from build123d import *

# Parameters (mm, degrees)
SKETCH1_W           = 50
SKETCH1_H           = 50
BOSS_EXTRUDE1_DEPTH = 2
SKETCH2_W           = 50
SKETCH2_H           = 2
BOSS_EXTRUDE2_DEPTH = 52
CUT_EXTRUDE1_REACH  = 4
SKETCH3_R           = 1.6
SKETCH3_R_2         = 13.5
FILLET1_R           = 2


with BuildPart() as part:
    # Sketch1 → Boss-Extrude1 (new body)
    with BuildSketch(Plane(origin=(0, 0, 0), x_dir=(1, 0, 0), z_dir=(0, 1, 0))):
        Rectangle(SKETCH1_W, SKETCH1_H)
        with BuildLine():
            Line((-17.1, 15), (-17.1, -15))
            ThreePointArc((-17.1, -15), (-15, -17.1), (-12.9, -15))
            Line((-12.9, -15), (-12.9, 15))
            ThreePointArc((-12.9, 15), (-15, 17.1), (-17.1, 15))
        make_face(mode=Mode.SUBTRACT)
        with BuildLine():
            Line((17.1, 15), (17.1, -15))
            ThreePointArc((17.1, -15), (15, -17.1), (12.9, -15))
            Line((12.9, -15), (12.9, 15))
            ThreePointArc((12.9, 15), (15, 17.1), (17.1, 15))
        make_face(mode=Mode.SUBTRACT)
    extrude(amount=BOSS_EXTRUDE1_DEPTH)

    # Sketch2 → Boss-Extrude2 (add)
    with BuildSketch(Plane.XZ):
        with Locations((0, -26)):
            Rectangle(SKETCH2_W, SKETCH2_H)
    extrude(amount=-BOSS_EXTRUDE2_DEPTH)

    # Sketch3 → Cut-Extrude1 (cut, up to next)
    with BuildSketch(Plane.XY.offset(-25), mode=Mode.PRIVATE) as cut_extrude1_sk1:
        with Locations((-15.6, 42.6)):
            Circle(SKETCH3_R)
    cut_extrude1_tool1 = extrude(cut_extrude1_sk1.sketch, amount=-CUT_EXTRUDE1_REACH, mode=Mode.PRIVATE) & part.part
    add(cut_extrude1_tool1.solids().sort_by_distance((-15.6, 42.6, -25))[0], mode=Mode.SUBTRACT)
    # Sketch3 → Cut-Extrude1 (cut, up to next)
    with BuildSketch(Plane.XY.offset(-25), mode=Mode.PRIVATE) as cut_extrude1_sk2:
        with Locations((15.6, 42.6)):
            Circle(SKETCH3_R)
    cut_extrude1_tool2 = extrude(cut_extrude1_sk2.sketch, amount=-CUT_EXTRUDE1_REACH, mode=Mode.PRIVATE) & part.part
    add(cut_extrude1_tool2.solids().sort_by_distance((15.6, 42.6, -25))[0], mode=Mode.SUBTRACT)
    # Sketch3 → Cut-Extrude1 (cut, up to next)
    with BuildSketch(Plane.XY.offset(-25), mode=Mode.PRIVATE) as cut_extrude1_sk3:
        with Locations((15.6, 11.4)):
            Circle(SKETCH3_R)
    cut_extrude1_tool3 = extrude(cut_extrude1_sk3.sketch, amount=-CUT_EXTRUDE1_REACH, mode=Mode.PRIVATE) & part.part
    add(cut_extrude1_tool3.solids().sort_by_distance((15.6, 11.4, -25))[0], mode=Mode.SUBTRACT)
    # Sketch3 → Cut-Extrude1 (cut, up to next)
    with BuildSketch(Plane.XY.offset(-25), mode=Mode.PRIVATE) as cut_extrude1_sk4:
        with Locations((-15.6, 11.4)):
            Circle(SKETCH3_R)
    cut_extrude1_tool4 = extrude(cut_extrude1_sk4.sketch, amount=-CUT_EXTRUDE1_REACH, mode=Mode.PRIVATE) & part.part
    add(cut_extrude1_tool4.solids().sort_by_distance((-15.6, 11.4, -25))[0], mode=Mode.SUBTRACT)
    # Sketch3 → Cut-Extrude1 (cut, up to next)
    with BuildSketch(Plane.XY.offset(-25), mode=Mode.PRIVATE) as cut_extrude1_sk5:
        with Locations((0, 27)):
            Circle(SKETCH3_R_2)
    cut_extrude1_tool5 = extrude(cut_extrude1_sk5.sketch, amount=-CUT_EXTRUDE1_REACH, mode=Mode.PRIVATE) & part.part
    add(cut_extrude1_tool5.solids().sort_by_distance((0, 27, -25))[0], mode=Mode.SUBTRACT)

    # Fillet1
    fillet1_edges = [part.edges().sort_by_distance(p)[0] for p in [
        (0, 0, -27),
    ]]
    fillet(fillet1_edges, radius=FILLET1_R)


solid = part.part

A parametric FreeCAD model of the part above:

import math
import FreeCAD as App
import Part
import Sketcher
from FreeCAD import Vector


def edges_at(feature, points):
    """Names of the edges that pass closest to the given points."""
    edges = feature.Shape.Edges
    near = lambda p: min(range(len(edges)), key=lambda i: edges[i].distToShape(Part.Vertex(*p))[0])
    return sorted({f"Edge{near(p) + 1}" for p in points})


def add_polygon(sketch, points):
    """Adds a closed chain of lines whose ends are joined by coincident constraints."""
    first, n = sketch.GeometryCount, len(points)
    for a, b in zip(points, points[1:] + points[:1]):
        sketch.addGeometry(Part.LineSegment(App.Vector(*a, 0), App.Vector(*b, 0)), False)
    for i in range(n):
        sketch.addConstraint(Sketcher.Constraint("Coincident", first + i, 2, first + (i + 1) % n, 1))

doc = App.newDocument("Part")
params = doc.addObject("Spreadsheet::Sheet", "Params")
for row, (alias, value) in enumerate([
    ("sketch1_radius", "2.1 mm"),
    ("sketch1_width", "50 mm"),
    ("sketch1_height", "30 mm"),
    ("pad1_length", "2 mm"),
    ("sketch2_width", "50 mm"),
    ("sketch2_height", "2 mm"),
    ("pad2_length", "52 mm"),
    ("sketch3_diameter", "3.2 mm"),
    ("sketch4_diameter", "3.2 mm"),
    ("sketch5_diameter", "3.2 mm"),
    ("sketch6_diameter", "3.2 mm"),
    ("sketch7_diameter", "27 mm"),
    ("fillet_radius", "2 mm"),
], start=1):
    params.set(f"A{row}", alias)
    params.set(f"B{row}", "=" + value)
    params.setAlias(f"B{row}", alias)

body = doc.addObject("PartDesign::Body", "Body")

# Sketch on XZ plane
sketch1 = body.newObject("Sketcher::SketchObject", "Sketch")
sketch1.AttachmentSupport = (doc.getObject("XZ_Plane"), [""])
sketch1.MapMode = "FlatFace"
add_polygon(sketch1, [(-25, -25), (-25, 25), (25, 25), (25, -25)])  # lines 0-3
sketch1.addGeometry(Part.LineSegment(Vector(-17.1, 15, 0), Vector(-17.1, -15, 0)), False)  # 4
sketch1.addGeometry(Part.ArcOfCircle(Part.Circle(Vector(-15, -15, 0), Vector(0, 0, 1), 2.1), math.radians(180), math.radians(360)), False)  # 5
sketch1.addGeometry(Part.LineSegment(Vector(-12.9, -15, 0), Vector(-12.9, 15, 0)), False)  # 6
sketch1.addGeometry(Part.ArcOfCircle(Part.Circle(Vector(-15, 15, 0), Vector(0, 0, 1), 2.1), math.radians(0), math.radians(180)), False)  # 7
sketch1.addGeometry(Part.ArcOfCircle(Part.Circle(Vector(15, -15, 0), Vector(0, 0, 1), 2.1), math.radians(180), math.radians(360)), False)  # 8
sketch1.addGeometry(Part.LineSegment(Vector(17.1, -15, 0), Vector(17.1, 15, 0)), False)  # 9
sketch1.addGeometry(Part.ArcOfCircle(Part.Circle(Vector(15, 15, 0), Vector(0, 0, 1), 2.1), math.radians(0), math.radians(180)), False)  # 10
sketch1.addGeometry(Part.LineSegment(Vector(12.9, 15, 0), Vector(12.9, -15, 0)), False)  # 11
sketch1.addConstraint([
    Sketcher.Constraint("Tangent", 4, 2, 5, 1),
    Sketcher.Constraint("Tangent", 5, 2, 6, 1),
    Sketcher.Constraint("Tangent", 6, 2, 7, 1),
    Sketcher.Constraint("Tangent", 7, 2, 4, 1),
    Sketcher.Constraint("Tangent", 8, 2, 9, 1),
    Sketcher.Constraint("Tangent", 9, 2, 10, 1),
    Sketcher.Constraint("Tangent", 10, 2, 11, 1),
    Sketcher.Constraint("Tangent", 11, 2, 8, 1),
    Sketcher.Constraint("Vertical", 0),
    Sketcher.Constraint("Horizontal", 1),
    Sketcher.Constraint("Vertical", 2),
    Sketcher.Constraint("Horizontal", 3),
    Sketcher.Constraint("Vertical", 4),
    Sketcher.Constraint("Vertical", 6),
    Sketcher.Constraint("Vertical", 9),
    Sketcher.Constraint("Vertical", 11),
    Sketcher.Constraint("Equal", 7, 8),
    Sketcher.Constraint("Symmetric", 7, 3, 8, 3, -1, 1),
    Sketcher.Constraint("Symmetric", 0, 2, 2, 2, -1, 1),
    Sketcher.Constraint("Horizontal", 5, 3, 8, 3),
    Sketcher.Constraint("Horizontal", 7, 3, 10, 3),
    Sketcher.Constraint("Equal", 3, 0),
    Sketcher.Constraint("Radius", 5, 2.1),
    Sketcher.Constraint("DistanceX", 1, 1, 1, 2, 50.0),
    Sketcher.Constraint("DistanceY", 4, 2, 4, 1, 30.0),
    Sketcher.Constraint("DistanceX", 5, 3, -1, 1, 15.0),
])
sketch1.setExpression("Constraints[26]", "Params.sketch1_radius")
sketch1.setExpression("Constraints[27]", "Params.sketch1_width")
sketch1.setExpression("Constraints[28]", "Params.sketch1_height")
pad1 = body.newObject("PartDesign::Pad", "Pad")
pad1.Profile = sketch1
pad1.setExpression("Length", "Params.pad1_length")
pad1.Reversed = True

# Sketch on XZ plane
sketch2 = body.newObject("Sketcher::SketchObject", "Sketch001")
sketch2.AttachmentSupport = (doc.getObject("XZ_Plane"), [""])
sketch2.MapMode = "FlatFace"
add_polygon(sketch2, [(-25, -25), (-25, -27), (25, -27), (25, -25)])  # lines 0-3
sketch2.addConstraint([
    Sketcher.Constraint("Vertical", 0),
    Sketcher.Constraint("Horizontal", 1),
    Sketcher.Constraint("Vertical", 2),
    Sketcher.Constraint("Horizontal", 3),
    Sketcher.Constraint("DistanceX", 1, 1, 1, 2, 50.0),
    Sketcher.Constraint("DistanceY", 0, 2, 0, 1, 2.0),
    Sketcher.Constraint("DistanceX", 0, 2, -1, 1, 25.0),
    Sketcher.Constraint("DistanceY", 0, 2, -1, 1, 27.0),
])
sketch2.setExpression("Constraints[8]", "Params.sketch2_width")
sketch2.setExpression("Constraints[9]", "Params.sketch2_height")
pad2 = body.newObject("PartDesign::Pad", "Pad001")
pad2.Profile = sketch2
pad2.setExpression("Length", "Params.pad2_length")
pad2.Reversed = True

# Sketch on XY plane
sketch3 = body.newObject("Sketcher::SketchObject", "Sketch002")
sketch3.AttachmentSupport = (doc.getObject("XY_Plane"), [""])
sketch3.MapMode = "FlatFace"
sketch3.AttachmentOffset = App.Placement(Vector(0, 0, -25), App.Rotation())
sketch3.addGeometry(Part.Circle(Vector(-15.6, 42.6, 0), Vector(0, 0, 1), 1.6), False)
sketch3.addConstraint([
    Sketcher.Constraint("Diameter", 0, 3.2),
    Sketcher.Constraint("DistanceX", 0, 3, -1, 1, 15.6),
    Sketcher.Constraint("DistanceY", -1, 1, 0, 3, 42.6),
])
sketch3.setExpression("Constraints[0]", "Params.sketch3_diameter")
pocket1 = body.newObject("PartDesign::Pocket", "Pocket")
pocket1.Profile = sketch3
pocket1.Type = "UpToFirst"

# Sketch on XY plane
sketch4 = body.newObject("Sketcher::SketchObject", "Sketch003")
sketch4.AttachmentSupport = (doc.getObject("XY_Plane"), [""])
sketch4.MapMode = "FlatFace"
sketch4.AttachmentOffset = App.Placement(Vector(0, 0, -25), App.Rotation())
sketch4.addGeometry(Part.Circle(Vector(15.6, 42.6, 0), Vector(0, 0, 1), 1.6), False)
sketch4.addConstraint([
    Sketcher.Constraint("Diameter", 0, 3.2),
    Sketcher.Constraint("DistanceX", -1, 1, 0, 3, 15.6),
    Sketcher.Constraint("DistanceY", -1, 1, 0, 3, 42.6),
])
sketch4.setExpression("Constraints[0]", "Params.sketch4_diameter")
pocket2 = body.newObject("PartDesign::Pocket", "Pocket001")
pocket2.Profile = sketch4
pocket2.Type = "UpToFirst"

# Sketch on XY plane
sketch5 = body.newObject("Sketcher::SketchObject", "Sketch004")
sketch5.AttachmentSupport = (doc.getObject("XY_Plane"), [""])
sketch5.MapMode = "FlatFace"
sketch5.AttachmentOffset = App.Placement(Vector(0, 0, -25), App.Rotation())
sketch5.addGeometry(Part.Circle(Vector(15.6, 11.4, 0), Vector(0, 0, 1), 1.6), False)
sketch5.addConstraint([
    Sketcher.Constraint("Diameter", 0, 3.2),
    Sketcher.Constraint("DistanceX", -1, 1, 0, 3, 15.6),
    Sketcher.Constraint("DistanceY", -1, 1, 0, 3, 11.4),
])
sketch5.setExpression("Constraints[0]", "Params.sketch5_diameter")
pocket3 = body.newObject("PartDesign::Pocket", "Pocket002")
pocket3.Profile = sketch5
pocket3.Type = "UpToFirst"

# Sketch on XY plane
sketch6 = body.newObject("Sketcher::SketchObject", "Sketch005")
sketch6.AttachmentSupport = (doc.getObject("XY_Plane"), [""])
sketch6.MapMode = "FlatFace"
sketch6.AttachmentOffset = App.Placement(Vector(0, 0, -25), App.Rotation())
sketch6.addGeometry(Part.Circle(Vector(-15.6, 11.4, 0), Vector(0, 0, 1), 1.6), False)
sketch6.addConstraint([
    Sketcher.Constraint("Diameter", 0, 3.2),
    Sketcher.Constraint("DistanceX", 0, 3, -1, 1, 15.6),
    Sketcher.Constraint("DistanceY", -1, 1, 0, 3, 11.4),
])
sketch6.setExpression("Constraints[0]", "Params.sketch6_diameter")
pocket4 = body.newObject("PartDesign::Pocket", "Pocket003")
pocket4.Profile = sketch6
pocket4.Type = "UpToFirst"

# Sketch on XY plane
sketch7 = body.newObject("Sketcher::SketchObject", "Sketch006")
sketch7.AttachmentSupport = (doc.getObject("XY_Plane"), [""])
sketch7.MapMode = "FlatFace"
sketch7.AttachmentOffset = App.Placement(Vector(0, 0, -25), App.Rotation())
sketch7.addGeometry(Part.Circle(Vector(0, 27, 0), Vector(0, 0, 1), 14), False)
sketch7.addConstraint([
    Sketcher.Constraint("PointOnObject", 0, 3, -2),
    Sketcher.Constraint("Diameter", 0, 27.0),
    Sketcher.Constraint("DistanceY", -1, 1, 0, 3, 27.0),
])
sketch7.setExpression("Constraints[1]", "Params.sketch7_diameter")
pocket5 = body.newObject("PartDesign::Pocket", "Pocket004")
pocket5.Profile = sketch7
pocket5.Type = "UpToFirst"
doc.recompute()

fillet = body.newObject("PartDesign::Fillet", "Fillet")
fillet.Base = (pocket5, edges_at(pocket5, [(0, 0, -27)]))
fillet.setExpression("Radius", "Params.fillet_radius")

doc.recompute()
